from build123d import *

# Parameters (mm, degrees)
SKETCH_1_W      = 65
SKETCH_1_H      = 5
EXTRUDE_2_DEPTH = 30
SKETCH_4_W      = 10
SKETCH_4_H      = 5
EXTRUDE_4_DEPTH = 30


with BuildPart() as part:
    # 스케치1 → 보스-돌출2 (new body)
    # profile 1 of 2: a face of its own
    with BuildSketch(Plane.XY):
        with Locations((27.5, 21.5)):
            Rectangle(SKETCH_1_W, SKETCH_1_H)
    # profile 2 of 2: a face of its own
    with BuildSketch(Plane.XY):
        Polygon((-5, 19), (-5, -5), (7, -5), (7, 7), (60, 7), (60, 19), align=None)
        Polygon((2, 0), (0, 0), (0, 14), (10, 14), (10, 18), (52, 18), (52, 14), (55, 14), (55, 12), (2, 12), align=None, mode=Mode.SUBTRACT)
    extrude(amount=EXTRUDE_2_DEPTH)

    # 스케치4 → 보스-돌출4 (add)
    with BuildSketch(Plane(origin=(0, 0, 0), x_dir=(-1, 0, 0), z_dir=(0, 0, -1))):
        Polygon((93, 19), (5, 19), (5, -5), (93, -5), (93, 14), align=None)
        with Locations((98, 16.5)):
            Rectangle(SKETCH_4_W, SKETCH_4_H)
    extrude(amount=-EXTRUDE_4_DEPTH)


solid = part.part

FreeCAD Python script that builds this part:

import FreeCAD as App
import Part
import Sketcher
Q = App.Units.Quantity

doc = App.newDocument("Part")
body = doc.addObject("PartDesign::Body", "Body")

# Sketch on XY plane
sketch1 = body.newObject("Sketcher::SketchObject", "Sketch")
sketch1.AttachmentSupport = (doc.getObject("XY_Plane"), [""])
sketch1.MapMode = "FlatFace"
sketch1.addGeometry(Part.LineSegment(App.Vector(-5, 24, 0), App.Vector(-5, -5, 0)), False)
sketch1.addGeometry(Part.LineSegment(App.Vector(-5, -5, 0), App.Vector(7, -5, 0)), False)
sketch1.addGeometry(Part.LineSegment(App.Vector(7, -5, 0), App.Vector(7, 7, 0)), False)
sketch1.addGeometry(Part.LineSegment(App.Vector(7, 7, 0), App.Vector(60, 7, 0)), False)
sketch1.addGeometry(Part.LineSegment(App.Vector(60, 7, 0), App.Vector(60, 24, 0)), False)
sketch1.addGeometry(Part.LineSegment(App.Vector(60, 24, 0), App.Vector(-5, 24, 0)), False)
sketch1.addGeometry(Part.LineSegment(App.Vector(2, 0, 0), App.Vector(0, 0, 0)), False)
sketch1.addGeometry(Part.LineSegment(App.Vector(0, 0, 0), App.Vector(0, 14, 0)), False)
sketch1.addGeometry(Part.LineSegment(App.Vector(0, 14, 0), App.Vector(10, 14, 0)), False)
sketch1.addGeometry(Part.LineSegment(App.Vector(10, 14, 0), App.Vector(10, 18, 0)), False)
sketch1.addGeometry(Part.LineSegment(App.Vector(10, 18, 0), App.Vector(52, 18, 0)), False)
sketch1.addGeometry(Part.LineSegment(App.Vector(52, 18, 0), App.Vector(52, 14, 0)), False)
sketch1.addGeometry(Part.LineSegment(App.Vector(52, 14, 0), App.Vector(55, 14, 0)), False)
sketch1.addGeometry(Part.LineSegment(App.Vector(55, 14, 0), App.Vector(55, 12, 0)), False)
sketch1.addGeometry(Part.LineSegment(App.Vector(55, 12, 0), App.Vector(2, 12, 0)), False)
sketch1.addGeometry(Part.LineSegment(App.Vector(2, 12, 0), App.Vector(2, 0, 0)), False)
sketch1.addConstraint(Sketcher.Constraint("Coincident", 0, 2, 1, 1))
sketch1.addConstraint(Sketcher.Constraint("Coincident", 1, 2, 2, 1))
sketch1.addConstraint(Sketcher.Constraint("Coincident", 2, 2, 3, 1))
sketch1.addConstraint(Sketcher.Constraint("Coincident", 3, 2, 4, 1))
sketch1.addConstraint(Sketcher.Constraint("Coincident", 4, 2, 5, 1))
sketch1.addConstraint(Sketcher.Constraint("Coincident", 5, 2, 0, 1))
sketch1.addConstraint(Sketcher.Constraint("Coincident", 6, 2, 7, 1))
sketch1.addConstraint(Sketcher.Constraint("Coincident", 7, 2, 8, 1))
sketch1.addConstraint(Sketcher.Constraint("Coincident", 8, 2, 9, 1))
sketch1.addConstraint(Sketcher.Constraint("Coincident", 9, 2, 10, 1))
sketch1.addConstraint(Sketcher.Constraint("Coincident", 10, 2, 11, 1))
sketch1.addConstraint(Sketcher.Constraint("Coincident", 11, 2, 12, 1))
sketch1.addConstraint(Sketcher.Constraint("Coincident", 12, 2, 13, 1))
sketch1.addConstraint(Sketcher.Constraint("Coincident", 13, 2, 14, 1))
sketch1.addConstraint(Sketcher.Constraint("Coincident", 14, 2, 15, 1))
sketch1.addConstraint(Sketcher.Constraint("Coincident", 15, 2, 6, 1))
sketch1.addConstraint(Sketcher.Constraint("Vertical", 0))
sketch1.addConstraint(Sketcher.Constraint("Horizontal", 1))
sketch1.addConstraint(Sketcher.Constraint("Vertical", 2))
sketch1.addConstraint(Sketcher.Constraint("Horizontal", 3))
sketch1.addConstraint(Sketcher.Constraint("Vertical", 4))
sketch1.addConstraint(Sketcher.Constraint("Horizontal", 5))
sketch1.addConstraint(Sketcher.Constraint("Horizontal", 6))
sketch1.addConstraint(Sketcher.Constraint("Vertical", 7))
sketch1.addConstraint(Sketcher.Constraint("Horizontal", 8))
sketch1.addConstraint(Sketcher.Constraint("Vertical", 9))
sketch1.addConstraint(Sketcher.Constraint("Horizontal", 10))
sketch1.addConstraint(Sketcher.Constraint("Vertical", 11))
sketch1.addConstraint(Sketcher.Constraint("Horizontal", 12))
sketch1.addConstraint(Sketcher.Constraint("Vertical", 13))
sketch1.addConstraint(Sketcher.Constraint("Horizontal", 14))
sketch1.addConstraint(Sketcher.Constraint("Vertical", 15))
sketch1.addConstraint(Sketcher.Constraint("Coincident", 6, 2, -1, 1))
sketch1.addConstraint(Sketcher.Constraint("Horizontal", 8, 2, 11, 2))
sketch1.addConstraint(Sketcher.Constraint("Equal", 3, 14))
sketch1.addConstraint(Sketcher.Constraint("Equal", 1, 2))
sketch1.addConstraint(Sketcher.Constraint("Equal", 6, 13))
sketch1.addConstraint(Sketcher.Constraint("Equal", 2, 15))
sketch1.addConstraint(Sketcher.Constraint("DistanceX", 1, 1, 1, 2, Q("12 mm")))
sketch1.addConstraint(Sketcher.Constraint("DistanceX", 3, 1, 3, 2, Q("53 mm")))
sketch1.addConstraint(Sketcher.Constraint("DistanceX", 6, 2, 6, 1, Q("2 mm")))
sketch1.addConstraint(Sketcher.Constraint("DistanceX", 8, 1, 8, 2, Q("10 mm")))
sketch1.addConstraint(Sketcher.Constraint("DistanceX", 10, 1, 10, 2, Q("42 mm")))
sketch1.addConstraint(Sketcher.Constraint("DistanceY", 0, 2, 0, 1, Q("29 mm")))
sketch1.addConstraint(Sketcher.Constraint("DistanceY", 9, 1, 9, 2, Q("4 mm")))
sketch1.addConstraint(Sketcher.Constraint("DistanceX", 0, 2, -1, 1, Q("5 mm")))
sketch1.addConstraint(Sketcher.Constraint("DistanceY", 0, 2, -1, 1, Q("5 mm")))
pad1 = body.newObject("PartDesign::Pad", "Pad")
pad1.Profile = sketch1
pad1.Length = 30

# Sketch on XY plane
sketch2 = body.newObject("Sketcher::SketchObject", "Sketch001")
sketch2.AttachmentSupport = (doc.getObject("XY_Plane"), [""])
sketch2.MapMode = "FlatFace"
sketch2.addGeometry(Part.LineSegment(App.Vector(-5, 19, 0), App.Vector(-5, -5, 0)), False)
sketch2.addGeometry(Part.LineSegment(App.Vector(-5, -5, 0), App.Vector(-93, -5, 0)), False)
sketch2.addGeometry(Part.LineSegment(App.Vector(-93, -5, 0), App.Vector(-93, 14, 0)), False)
sketch2.addGeometry(Part.LineSegment(App.Vector(-93, 14, 0), App.Vector(-103, 14, 0)), False)
sketch2.addGeometry(Part.LineSegment(App.Vector(-103, 14, 0), App.Vector(-103, 19, 0)), False)
sketch2.addGeometry(Part.LineSegment(App.Vector(-103, 19, 0), App.Vector(-5, 19, 0)), False)
sketch2.addConstraint(Sketcher.Constraint("Coincident", 0, 2, 1, 1))
sketch2.addConstraint(Sketcher.Constraint("Coincident", 1, 2, 2, 1))
sketch2.addConstraint(Sketcher.Constraint("Coincident", 2, 2, 3, 1))
sketch2.addConstraint(Sketcher.Constraint("Coincident", 3, 2, 4, 1))
sketch2.addConstraint(Sketcher.Constraint("Coincident", 4, 2, 5, 1))
sketch2.addConstraint(Sketcher.Constraint("Coincident", 5, 2, 0, 1))
sketch2.addConstraint(Sketcher.Constraint("Vertical", 0))
sketch2.addConstraint(Sketcher.Constraint("Horizontal", 1))
sketch2.addConstraint(Sketcher.Constraint("Vertical", 2))
sketch2.addConstraint(Sketcher.Constraint("Horizontal", 3))
sketch2.addConstraint(Sketcher.Constraint("Vertical", 4))
sketch2.addConstraint(Sketcher.Constraint("Horizontal", 5))
sketch2.addConstraint(Sketcher.Constraint("DistanceX", 1, 2, 1, 1, Q("88 mm")))
sketch2.addConstraint(Sketcher.Constraint("DistanceX", 3, 2, 3, 1, Q("10 mm")))
sketch2.addConstraint(Sketcher.Constraint("DistanceY", 0, 2, 0, 1, Q("24 mm")))
sketch2.addConstraint(Sketcher.Constraint("DistanceY", 2, 1, 2, 2, Q("19 mm")))
sketch2.addConstraint(Sketcher.Constraint("DistanceX", 0, 2, -1, 1, Q("5 mm")))
sketch2.addConstraint(Sketcher.Constraint("DistanceY", 0, 2, -1, 1, Q("5 mm")))
pad2 = body.newObject("PartDesign::Pad", "Pad001")
pad2.Profile = sketch2
pad2.Length = 30

doc.recompute()
